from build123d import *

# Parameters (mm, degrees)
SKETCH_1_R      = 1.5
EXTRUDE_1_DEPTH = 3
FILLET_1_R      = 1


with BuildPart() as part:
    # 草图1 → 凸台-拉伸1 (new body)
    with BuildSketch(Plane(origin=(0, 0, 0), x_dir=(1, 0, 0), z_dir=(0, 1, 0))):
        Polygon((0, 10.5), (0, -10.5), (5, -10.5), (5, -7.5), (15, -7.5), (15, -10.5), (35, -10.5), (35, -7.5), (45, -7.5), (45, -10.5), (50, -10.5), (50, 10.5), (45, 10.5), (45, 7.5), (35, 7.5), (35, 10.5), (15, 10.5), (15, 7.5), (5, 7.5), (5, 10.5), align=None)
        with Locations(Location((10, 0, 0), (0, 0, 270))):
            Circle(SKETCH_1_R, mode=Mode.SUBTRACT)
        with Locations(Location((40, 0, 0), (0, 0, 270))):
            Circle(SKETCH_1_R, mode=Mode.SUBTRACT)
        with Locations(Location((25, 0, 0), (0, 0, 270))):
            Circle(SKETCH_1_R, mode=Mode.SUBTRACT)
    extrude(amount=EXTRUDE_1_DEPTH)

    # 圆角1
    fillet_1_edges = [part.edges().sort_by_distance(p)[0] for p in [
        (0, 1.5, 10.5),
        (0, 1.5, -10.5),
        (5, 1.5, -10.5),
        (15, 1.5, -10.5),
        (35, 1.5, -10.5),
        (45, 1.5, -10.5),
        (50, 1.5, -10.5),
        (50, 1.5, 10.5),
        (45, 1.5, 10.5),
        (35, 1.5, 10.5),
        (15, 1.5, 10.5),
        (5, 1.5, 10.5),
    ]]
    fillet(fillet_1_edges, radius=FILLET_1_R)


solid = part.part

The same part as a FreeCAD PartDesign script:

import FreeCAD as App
import Part
import Sketcher

V = App.Vector


def edges_at(feature, points):
    """Names of the edges that pass closest to the given points."""
    edges = feature.Shape.Edges
    near = lambda p: min(range(len(edges)), key=lambda i: edges[i].distToShape(Part.Vertex(*p))[0])
    return sorted({f"Edge{near(p) + 1}" for p in points})


def add_polygon(sketch, points):
    """Adds a closed chain of lines whose ends are joined by coincident constraints."""
    first, n = sketch.GeometryCount, len(points)
    for a, b in zip(points, points[1:] + points[:1]):
        sketch.addGeometry(Part.LineSegment(App.Vector(*a, 0), App.Vector(*b, 0)), False)
    for i in range(n):
        sketch.addConstraint(Sketcher.Constraint("Coincident", first + i, 2, first + (i + 1) % n, 1))

doc = App.newDocument("Part")
body = doc.addObject("PartDesign::Body", "Body")

# Sketch on XZ plane
sketch1 = body.newObject("Sketcher::SketchObject", "Sketch")
sketch1.AttachmentSupport = (doc.getObject("XZ_Plane"), [""])
sketch1.MapMode = "FlatFace"
add_polygon(sketch1, [(0, -10.5), (0, 10.5), (5, 10.5), (5, 7.5), (15, 7.5), (15, 10.5), (35, 10.5), (35, 7.5), (45, 7.5), (45, 10.5), (50, 10.5), (50, -10.5), (45, -10.5), (45, -7.5), (35, -7.5), (35, -10.5), (15, -10.5), (15, -7.5), (5, -7.5), (5, -10.5)])  # lines 0-19
sketch1.addGeometry(Part.Circle(V(10, 0, 0), V(0, 0, 1), 1.5), False)  # 20
sketch1.addGeometry(Part.Circle(V(25, 0, 0), V(0, 0, 1), 1.5), False)  # 21
sketch1.addGeometry(Part.Circle(V(40, 0, 0), V(0, 0, 1), 1.5), False)  # 22
sketch1.addConstraint([
    Sketcher.Constraint("Vertical", 0),
    Sketcher.Constraint("Horizontal", 1),
    Sketcher.Constraint("Vertical", 2),
    Sketcher.Constraint("Horizontal", 3),
    Sketcher.Constraint("Vertical", 4),
    Sketcher.Constraint("Horizontal", 5),
    Sketcher.Constraint("Vertical", 6),
    Sketcher.Constraint("Horizontal", 7),
    Sketcher.Constraint("Vertical", 8),
    Sketcher.Constraint("Horizontal", 9),
    Sketcher.Constraint("Vertical", 10),
    Sketcher.Constraint("Horizontal", 11),
    Sketcher.Constraint("Vertical", 12),
    Sketcher.Constraint("Horizontal", 13),
    Sketcher.Constraint("Vertical", 14),
    Sketcher.Constraint("Horizontal", 15),
    Sketcher.Constraint("Vertical", 16),
    Sketcher.Constraint("Horizontal", 17),
    Sketcher.Constraint("Vertical", 18),
    Sketcher.Constraint("Horizontal", 19),
    Sketcher.Constraint("Equal", 20, 21),
    Sketcher.Constraint("Equal", 21, 22),
    Sketcher.Constraint("Symmetric", 0, 2, 19, 2, -1, 1),
    Sketcher.Constraint("Symmetric", 8, 2, 11, 2, -1),
    Sketcher.Constraint("Symmetric", 6, 2, 13, 2, -1),
    Sketcher.Constraint("Symmetric", 4, 2, 15, 2, -1),
    Sketcher.Constraint("Symmetric", 2, 2, 17, 2, -1),
    Sketcher.Constraint("PointOnObject", 20, 3, -1),
    Sketcher.Constraint("PointOnObject", 21, 3, -1),
    Sketcher.Constraint("PointOnObject", 22, 3, -1),
    Sketcher.Constraint("Horizontal", 1, 2, 4, 2),
    Sketcher.Constraint("Horizontal", 3, 2, 6, 2),
    Sketcher.Constraint("Horizontal", 5, 2, 8, 2),
    Sketcher.Constraint("Equal", 3, 7),
    Sketcher.Constraint("Equal", 1, 9),
    Sketcher.Constraint("Diameter", 20, 3.0),
    Sketcher.Constraint("DistanceX", 1, 1, 1, 2, 5.0),
    Sketcher.Constraint("DistanceX", 3, 1, 3, 2, 10.0),
    Sketcher.Constraint("DistanceX", 5, 1, 5, 2, 20.0),
    Sketcher.Constraint("DistanceY", 0, 1, 0, 2, 21.0),
    Sketcher.Constraint("DistanceY", 2, 2, 2, 1, 3.0),
    Sketcher.Constraint("DistanceX", -1, 1, 20, 3, 10.0),
    Sketcher.Constraint("DistanceX", -1, 1, 21, 3, 25.0),
    Sketcher.Constraint("DistanceX", -1, 1, 22, 3, 40.0),
])
pad1 = body.newObject("PartDesign::Pad", "Pad")
pad1.Profile = sketch1
pad1.Length = 3
pad1.Reversed = True
doc.recompute()

fillet = body.newObject("PartDesign::Fillet", "Fillet")
fillet.Base = (pad1, edges_at(pad1, [
    (0, 1.5, 10.5),
    (0, 1.5, -10.5),
    (5, 1.5, -10.5),
    (15, 1.5, -10.5),
    (35, 1.5, -10.5),
    (45, 1.5, -10.5),
    (50, 1.5, -10.5),
    (50, 1.5, 10.5),
    (45, 1.5, 10.5),
    (35, 1.5, 10.5),
    (15, 1.5, 10.5),
    (5, 1.5, 10.5),
]))
fillet.Radius = 1

doc.recompute()
